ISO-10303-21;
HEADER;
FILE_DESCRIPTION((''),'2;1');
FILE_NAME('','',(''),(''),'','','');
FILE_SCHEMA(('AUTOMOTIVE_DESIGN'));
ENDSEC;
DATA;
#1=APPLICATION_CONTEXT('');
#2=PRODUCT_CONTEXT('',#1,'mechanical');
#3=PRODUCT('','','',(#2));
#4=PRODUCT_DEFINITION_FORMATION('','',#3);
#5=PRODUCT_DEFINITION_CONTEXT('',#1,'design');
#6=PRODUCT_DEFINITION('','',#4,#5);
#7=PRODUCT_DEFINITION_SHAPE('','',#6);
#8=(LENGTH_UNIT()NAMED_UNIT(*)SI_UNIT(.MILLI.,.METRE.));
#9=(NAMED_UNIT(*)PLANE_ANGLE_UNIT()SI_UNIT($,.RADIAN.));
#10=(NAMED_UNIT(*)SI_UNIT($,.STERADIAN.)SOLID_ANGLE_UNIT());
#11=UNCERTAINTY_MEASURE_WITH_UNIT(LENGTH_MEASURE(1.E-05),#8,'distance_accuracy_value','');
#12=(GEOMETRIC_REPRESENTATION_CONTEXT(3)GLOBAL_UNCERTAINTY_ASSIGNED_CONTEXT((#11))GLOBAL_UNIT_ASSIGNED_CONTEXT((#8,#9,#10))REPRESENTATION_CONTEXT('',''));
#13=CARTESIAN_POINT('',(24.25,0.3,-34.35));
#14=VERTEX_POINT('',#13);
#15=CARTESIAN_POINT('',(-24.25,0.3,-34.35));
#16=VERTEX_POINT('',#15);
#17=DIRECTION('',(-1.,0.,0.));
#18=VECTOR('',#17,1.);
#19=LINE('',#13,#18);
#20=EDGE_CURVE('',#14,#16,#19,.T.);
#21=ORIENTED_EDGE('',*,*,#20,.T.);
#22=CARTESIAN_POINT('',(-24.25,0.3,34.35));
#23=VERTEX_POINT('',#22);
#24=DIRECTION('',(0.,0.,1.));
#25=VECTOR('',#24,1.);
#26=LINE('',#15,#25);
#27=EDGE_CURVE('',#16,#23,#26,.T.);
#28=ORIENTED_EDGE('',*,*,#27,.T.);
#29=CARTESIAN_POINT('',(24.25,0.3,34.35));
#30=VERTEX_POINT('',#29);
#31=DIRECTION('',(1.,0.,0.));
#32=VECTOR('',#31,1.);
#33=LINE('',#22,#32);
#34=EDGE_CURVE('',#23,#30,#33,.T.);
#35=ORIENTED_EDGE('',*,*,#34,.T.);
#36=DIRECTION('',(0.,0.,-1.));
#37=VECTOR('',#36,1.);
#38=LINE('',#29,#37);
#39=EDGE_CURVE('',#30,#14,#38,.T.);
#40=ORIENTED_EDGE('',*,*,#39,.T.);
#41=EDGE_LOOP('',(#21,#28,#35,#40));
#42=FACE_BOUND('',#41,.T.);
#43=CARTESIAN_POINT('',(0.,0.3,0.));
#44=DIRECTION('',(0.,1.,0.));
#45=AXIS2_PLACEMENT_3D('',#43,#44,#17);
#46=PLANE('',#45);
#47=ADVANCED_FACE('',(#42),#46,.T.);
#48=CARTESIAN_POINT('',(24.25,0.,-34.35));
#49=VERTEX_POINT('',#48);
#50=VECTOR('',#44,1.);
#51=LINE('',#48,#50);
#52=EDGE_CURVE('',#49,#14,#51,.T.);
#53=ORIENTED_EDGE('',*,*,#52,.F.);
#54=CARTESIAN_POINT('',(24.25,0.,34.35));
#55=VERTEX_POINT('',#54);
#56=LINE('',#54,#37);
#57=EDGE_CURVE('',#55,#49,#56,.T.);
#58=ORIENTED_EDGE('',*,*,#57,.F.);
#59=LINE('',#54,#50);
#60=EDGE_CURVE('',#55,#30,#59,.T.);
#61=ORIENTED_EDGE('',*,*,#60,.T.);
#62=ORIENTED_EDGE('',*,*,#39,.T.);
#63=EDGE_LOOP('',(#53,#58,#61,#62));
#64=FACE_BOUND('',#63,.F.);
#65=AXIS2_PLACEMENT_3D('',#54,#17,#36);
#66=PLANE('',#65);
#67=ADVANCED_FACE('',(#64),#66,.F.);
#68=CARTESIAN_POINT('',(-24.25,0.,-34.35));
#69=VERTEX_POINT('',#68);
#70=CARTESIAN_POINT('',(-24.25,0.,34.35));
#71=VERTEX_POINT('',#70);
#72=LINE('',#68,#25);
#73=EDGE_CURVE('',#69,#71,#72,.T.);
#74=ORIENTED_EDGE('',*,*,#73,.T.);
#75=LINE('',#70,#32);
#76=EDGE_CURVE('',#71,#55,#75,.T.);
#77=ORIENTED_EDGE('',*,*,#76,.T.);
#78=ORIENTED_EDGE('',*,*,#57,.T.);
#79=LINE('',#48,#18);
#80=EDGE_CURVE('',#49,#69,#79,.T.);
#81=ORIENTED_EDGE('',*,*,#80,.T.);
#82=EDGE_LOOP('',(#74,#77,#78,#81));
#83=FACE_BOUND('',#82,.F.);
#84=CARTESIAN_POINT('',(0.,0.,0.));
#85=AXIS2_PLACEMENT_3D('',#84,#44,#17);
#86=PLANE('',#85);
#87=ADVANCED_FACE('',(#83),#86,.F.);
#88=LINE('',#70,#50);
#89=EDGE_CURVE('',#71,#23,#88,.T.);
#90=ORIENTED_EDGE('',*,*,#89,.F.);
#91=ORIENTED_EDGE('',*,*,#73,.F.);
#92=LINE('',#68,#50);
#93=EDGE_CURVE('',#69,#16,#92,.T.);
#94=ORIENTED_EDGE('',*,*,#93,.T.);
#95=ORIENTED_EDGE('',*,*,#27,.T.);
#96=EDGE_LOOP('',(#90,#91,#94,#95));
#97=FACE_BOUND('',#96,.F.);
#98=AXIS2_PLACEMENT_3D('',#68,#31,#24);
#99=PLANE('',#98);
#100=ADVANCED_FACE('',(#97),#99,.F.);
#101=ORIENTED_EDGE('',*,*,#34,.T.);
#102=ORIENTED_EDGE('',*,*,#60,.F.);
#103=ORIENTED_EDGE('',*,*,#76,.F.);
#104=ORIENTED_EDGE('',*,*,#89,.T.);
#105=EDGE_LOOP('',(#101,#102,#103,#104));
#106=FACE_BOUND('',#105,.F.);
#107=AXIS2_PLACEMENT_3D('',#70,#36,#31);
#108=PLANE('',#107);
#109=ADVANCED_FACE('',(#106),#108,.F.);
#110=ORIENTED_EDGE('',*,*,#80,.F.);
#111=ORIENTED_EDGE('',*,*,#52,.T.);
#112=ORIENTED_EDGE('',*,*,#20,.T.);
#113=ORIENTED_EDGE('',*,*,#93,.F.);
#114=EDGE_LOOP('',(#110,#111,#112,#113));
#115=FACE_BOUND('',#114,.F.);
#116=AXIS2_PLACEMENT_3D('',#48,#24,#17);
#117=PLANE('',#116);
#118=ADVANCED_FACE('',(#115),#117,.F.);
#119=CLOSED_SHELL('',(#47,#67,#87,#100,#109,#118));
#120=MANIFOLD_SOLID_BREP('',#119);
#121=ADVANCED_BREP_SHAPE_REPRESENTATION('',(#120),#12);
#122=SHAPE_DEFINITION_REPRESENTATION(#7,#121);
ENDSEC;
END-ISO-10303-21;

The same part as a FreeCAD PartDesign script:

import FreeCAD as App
import Part
import Sketcher
from FreeCAD import Vector

doc = App.newDocument("Part")
body = doc.addObject("PartDesign::Body", "Body")

# Sketch on XZ plane
sketch1 = body.newObject("Sketcher::SketchObject", "Sketch")
sketch1.AttachmentSupport = (doc.getObject("XZ_Plane"), [""])
sketch1.MapMode = "FlatFace"
sketch1.addGeometry(Part.LineSegment(Vector(-24, -34, 0), Vector(-24, 34, 0)), False)
sketch1.addGeometry(Part.LineSegment(Vector(-24, 34, 0), Vector(24, 34, 0)), False)
sketch1.addGeometry(Part.LineSegment(Vector(24, 34, 0), Vector(24, -34, 0)), False)
sketch1.addGeometry(Part.LineSegment(Vector(24, -34, 0), Vector(-24, -34, 0)), False)
sketch1.addConstraint(Sketcher.Constraint("Coincident", 0, 2, 1, 1))
sketch1.addConstraint(Sketcher.Constraint("Coincident", 1, 2, 2, 1))
sketch1.addConstraint(Sketcher.Constraint("Coincident", 2, 2, 3, 1))
sketch1.addConstraint(Sketcher.Constraint("Coincident", 3, 2, 0, 1))
sketch1.addConstraint(Sketcher.Constraint("Vertical", 0))
sketch1.addConstraint(Sketcher.Constraint("Horizontal", 1))
sketch1.addConstraint(Sketcher.Constraint("Vertical", 2))
sketch1.addConstraint(Sketcher.Constraint("Horizontal", 3))
sketch1.addConstraint(Sketcher.Constraint("Symmetric", 0, 2, 2, 2, -1, 1))
sketch1.addConstraint(Sketcher.Constraint("DistanceX", 1, 1, 1, 2, 48.5))
sketch1.addConstraint(Sketcher.Constraint("DistanceY", 0, 1, 0, 2, 68.7))
pad1 = body.newObject("PartDesign::Pad", "Pad")
pad1.Profile = sketch1
pad1.Length = 0.3
pad1.Reversed = True

doc.recompute()
